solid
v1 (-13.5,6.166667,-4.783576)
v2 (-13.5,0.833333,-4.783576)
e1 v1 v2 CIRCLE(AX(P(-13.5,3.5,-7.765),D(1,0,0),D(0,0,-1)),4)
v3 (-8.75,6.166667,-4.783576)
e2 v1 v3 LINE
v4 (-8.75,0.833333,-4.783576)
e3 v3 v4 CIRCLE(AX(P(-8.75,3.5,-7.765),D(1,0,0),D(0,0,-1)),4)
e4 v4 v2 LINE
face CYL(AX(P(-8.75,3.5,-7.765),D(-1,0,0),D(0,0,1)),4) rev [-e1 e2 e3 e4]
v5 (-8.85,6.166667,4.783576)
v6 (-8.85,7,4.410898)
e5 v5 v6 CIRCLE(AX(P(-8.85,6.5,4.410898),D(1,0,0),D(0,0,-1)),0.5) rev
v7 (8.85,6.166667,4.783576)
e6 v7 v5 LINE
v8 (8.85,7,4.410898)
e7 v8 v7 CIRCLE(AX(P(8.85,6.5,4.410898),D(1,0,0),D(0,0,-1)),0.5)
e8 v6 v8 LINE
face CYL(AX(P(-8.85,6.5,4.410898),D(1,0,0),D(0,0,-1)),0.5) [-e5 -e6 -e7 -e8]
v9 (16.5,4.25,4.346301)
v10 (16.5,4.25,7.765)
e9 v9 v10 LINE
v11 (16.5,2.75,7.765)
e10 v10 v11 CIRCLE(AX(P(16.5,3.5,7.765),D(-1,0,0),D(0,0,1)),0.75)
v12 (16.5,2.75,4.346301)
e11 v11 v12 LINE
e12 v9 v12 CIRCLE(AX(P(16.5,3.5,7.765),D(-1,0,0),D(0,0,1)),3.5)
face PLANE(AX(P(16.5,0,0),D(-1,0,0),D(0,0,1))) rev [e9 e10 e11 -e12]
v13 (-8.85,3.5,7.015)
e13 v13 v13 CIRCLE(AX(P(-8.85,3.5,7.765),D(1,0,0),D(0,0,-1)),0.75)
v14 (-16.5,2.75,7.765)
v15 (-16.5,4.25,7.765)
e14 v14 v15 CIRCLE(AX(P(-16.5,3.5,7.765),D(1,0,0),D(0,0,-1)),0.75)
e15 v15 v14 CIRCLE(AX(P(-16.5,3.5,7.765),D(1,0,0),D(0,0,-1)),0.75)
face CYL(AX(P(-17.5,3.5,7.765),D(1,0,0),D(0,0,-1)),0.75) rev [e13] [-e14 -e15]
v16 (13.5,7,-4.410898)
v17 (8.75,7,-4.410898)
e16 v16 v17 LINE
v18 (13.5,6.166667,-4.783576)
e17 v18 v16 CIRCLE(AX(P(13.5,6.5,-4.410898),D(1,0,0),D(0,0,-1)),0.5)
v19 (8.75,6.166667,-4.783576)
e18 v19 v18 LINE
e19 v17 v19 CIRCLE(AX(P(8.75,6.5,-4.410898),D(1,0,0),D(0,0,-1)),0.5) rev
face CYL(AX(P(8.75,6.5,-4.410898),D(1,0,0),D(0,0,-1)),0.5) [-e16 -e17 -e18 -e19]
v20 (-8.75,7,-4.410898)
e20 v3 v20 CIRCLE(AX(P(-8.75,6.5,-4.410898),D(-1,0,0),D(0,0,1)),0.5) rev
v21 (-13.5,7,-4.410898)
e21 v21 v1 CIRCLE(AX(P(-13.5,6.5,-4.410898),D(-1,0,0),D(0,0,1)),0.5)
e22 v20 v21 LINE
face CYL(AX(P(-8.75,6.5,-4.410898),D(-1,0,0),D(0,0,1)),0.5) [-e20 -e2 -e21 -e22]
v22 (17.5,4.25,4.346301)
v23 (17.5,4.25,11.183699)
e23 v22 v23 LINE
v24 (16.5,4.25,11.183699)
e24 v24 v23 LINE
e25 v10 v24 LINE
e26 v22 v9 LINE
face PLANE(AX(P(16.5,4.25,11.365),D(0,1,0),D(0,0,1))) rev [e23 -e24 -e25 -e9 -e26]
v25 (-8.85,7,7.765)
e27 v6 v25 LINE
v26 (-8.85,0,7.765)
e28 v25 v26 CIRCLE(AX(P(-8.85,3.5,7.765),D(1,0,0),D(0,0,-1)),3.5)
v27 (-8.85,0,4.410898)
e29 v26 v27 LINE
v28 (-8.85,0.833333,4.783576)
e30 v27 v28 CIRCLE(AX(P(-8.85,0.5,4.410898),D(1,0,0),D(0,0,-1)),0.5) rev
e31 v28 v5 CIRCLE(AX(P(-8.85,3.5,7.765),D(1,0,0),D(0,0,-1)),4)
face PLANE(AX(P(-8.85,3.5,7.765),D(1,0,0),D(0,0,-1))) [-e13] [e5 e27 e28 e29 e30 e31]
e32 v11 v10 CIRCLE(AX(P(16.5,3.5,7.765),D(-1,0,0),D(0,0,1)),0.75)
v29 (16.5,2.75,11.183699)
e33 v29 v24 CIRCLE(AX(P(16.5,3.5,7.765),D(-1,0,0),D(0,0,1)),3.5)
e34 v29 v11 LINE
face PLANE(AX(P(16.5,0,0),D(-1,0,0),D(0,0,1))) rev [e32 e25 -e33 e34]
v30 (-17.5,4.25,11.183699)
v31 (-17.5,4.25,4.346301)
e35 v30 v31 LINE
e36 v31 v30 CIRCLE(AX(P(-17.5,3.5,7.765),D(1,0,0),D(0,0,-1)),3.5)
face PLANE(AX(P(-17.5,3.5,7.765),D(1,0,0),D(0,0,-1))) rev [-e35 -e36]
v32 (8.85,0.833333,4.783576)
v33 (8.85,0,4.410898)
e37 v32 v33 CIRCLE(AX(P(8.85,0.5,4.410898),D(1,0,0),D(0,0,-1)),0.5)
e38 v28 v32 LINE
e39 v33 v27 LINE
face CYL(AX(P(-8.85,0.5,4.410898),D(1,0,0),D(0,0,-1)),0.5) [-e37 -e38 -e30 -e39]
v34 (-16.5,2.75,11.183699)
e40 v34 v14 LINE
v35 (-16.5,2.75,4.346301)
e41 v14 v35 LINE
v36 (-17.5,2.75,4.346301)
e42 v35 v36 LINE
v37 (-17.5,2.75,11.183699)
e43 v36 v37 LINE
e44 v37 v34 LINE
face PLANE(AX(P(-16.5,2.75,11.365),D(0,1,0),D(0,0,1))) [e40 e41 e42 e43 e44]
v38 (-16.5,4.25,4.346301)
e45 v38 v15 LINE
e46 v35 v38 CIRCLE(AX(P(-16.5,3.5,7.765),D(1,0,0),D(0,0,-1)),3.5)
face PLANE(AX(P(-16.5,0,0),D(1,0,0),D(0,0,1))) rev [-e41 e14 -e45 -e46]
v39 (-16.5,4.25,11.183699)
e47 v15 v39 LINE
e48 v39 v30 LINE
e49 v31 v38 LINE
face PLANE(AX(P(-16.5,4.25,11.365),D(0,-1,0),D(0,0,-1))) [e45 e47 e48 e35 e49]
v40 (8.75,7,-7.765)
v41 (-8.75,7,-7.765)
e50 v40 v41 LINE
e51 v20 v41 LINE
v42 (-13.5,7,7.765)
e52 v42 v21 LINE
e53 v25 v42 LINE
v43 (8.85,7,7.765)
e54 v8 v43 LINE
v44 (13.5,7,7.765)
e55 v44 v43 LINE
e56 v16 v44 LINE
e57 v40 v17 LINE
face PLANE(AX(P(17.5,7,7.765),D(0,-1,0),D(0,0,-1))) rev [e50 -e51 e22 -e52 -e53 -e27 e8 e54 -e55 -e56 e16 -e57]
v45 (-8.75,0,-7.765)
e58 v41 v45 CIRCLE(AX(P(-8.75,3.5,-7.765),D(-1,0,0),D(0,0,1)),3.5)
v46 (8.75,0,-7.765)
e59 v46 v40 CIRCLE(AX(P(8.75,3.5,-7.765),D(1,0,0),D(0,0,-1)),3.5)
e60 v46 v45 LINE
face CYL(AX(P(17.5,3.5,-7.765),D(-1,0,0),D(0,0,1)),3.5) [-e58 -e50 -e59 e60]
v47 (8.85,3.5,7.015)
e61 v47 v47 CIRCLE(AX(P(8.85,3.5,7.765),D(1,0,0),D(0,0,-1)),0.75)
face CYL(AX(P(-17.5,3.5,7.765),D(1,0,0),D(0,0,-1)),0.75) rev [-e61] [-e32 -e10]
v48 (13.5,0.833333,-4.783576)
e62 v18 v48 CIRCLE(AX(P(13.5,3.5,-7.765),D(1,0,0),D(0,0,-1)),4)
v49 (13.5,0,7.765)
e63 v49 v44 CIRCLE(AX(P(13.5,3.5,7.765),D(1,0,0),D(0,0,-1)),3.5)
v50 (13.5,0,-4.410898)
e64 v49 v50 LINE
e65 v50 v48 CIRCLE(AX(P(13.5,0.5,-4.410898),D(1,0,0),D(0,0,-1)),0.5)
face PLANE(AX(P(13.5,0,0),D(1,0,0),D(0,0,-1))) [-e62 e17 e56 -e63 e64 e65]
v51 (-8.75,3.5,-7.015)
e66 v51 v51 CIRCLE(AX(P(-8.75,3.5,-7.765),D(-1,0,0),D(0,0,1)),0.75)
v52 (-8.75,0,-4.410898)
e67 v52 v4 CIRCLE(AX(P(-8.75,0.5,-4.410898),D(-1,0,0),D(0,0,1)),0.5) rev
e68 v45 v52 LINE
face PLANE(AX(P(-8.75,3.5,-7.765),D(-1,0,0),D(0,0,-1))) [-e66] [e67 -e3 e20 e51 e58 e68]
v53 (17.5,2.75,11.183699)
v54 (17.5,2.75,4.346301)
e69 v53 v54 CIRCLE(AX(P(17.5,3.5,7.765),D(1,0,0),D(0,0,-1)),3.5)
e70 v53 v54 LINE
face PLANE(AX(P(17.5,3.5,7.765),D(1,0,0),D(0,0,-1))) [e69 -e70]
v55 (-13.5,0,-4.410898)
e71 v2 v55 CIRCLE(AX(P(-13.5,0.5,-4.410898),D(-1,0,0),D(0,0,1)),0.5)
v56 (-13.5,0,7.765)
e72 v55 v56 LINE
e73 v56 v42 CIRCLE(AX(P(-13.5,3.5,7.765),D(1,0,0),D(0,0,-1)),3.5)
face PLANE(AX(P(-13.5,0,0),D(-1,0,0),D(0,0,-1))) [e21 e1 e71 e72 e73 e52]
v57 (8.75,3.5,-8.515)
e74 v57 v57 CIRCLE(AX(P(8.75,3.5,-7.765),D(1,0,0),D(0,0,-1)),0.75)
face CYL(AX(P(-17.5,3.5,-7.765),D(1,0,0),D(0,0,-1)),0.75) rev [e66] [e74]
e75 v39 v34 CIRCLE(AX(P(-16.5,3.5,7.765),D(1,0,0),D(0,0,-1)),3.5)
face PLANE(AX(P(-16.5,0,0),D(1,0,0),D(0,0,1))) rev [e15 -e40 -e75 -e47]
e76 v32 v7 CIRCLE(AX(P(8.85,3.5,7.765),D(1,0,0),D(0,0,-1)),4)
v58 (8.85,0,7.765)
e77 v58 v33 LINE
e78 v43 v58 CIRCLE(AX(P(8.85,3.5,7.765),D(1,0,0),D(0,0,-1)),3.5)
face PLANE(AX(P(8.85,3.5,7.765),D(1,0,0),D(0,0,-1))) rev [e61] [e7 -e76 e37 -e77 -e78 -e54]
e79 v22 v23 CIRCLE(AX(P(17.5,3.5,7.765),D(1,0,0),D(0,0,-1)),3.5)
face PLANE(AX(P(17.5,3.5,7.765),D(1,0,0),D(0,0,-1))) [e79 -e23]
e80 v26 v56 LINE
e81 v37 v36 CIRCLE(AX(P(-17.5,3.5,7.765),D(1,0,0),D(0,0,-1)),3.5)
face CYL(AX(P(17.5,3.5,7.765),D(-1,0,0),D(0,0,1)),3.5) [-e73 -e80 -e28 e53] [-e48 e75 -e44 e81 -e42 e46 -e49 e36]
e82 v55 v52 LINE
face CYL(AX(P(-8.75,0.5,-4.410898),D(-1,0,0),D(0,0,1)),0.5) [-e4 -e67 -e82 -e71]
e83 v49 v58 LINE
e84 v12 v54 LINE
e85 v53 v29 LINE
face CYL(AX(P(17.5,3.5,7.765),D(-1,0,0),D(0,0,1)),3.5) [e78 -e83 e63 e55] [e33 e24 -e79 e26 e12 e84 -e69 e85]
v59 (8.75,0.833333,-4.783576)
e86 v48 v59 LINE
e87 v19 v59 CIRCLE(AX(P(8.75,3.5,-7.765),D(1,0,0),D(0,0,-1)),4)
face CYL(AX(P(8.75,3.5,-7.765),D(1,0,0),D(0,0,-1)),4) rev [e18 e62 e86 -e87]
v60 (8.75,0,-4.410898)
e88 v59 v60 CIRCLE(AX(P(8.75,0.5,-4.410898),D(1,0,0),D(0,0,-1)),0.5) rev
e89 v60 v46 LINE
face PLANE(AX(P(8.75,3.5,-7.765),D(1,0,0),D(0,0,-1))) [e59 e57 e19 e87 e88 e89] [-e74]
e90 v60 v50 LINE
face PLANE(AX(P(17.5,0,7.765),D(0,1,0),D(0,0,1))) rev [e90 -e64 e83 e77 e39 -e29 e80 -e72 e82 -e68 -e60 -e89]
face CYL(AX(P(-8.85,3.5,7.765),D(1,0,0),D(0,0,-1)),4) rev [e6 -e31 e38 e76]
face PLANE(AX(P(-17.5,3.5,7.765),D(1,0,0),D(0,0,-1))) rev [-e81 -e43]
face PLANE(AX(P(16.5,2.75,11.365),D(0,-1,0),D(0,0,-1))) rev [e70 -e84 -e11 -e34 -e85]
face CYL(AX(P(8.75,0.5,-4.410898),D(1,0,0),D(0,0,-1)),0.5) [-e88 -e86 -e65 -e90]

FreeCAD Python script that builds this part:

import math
import FreeCAD as App
import Part
import Sketcher


def edges_at(feature, points):
    """Names of the edges that pass closest to the given points."""
    edges = feature.Shape.Edges
    near = lambda p: min(range(len(edges)), key=lambda i: edges[i].distToShape(Part.Vertex(*p))[0])
    return sorted({f"Edge{near(p) + 1}" for p in points})

doc = App.newDocument("Part")
params = doc.addObject("Spreadsheet::Sheet", "Params")
for row, (alias, value) in enumerate([
    ("sketch1_radius", "3.5 mm"),
    ("sketch1_height", "15.53 mm"),
    ("pad1_length", "35 mm"),
    ("sketch2_diameter", "7 mm"),
    ("sketch2_width", "9 mm"),
    ("sketch2_height", "24 mm"),
    ("pocket1_length", "4 mm"),
    ("sketch3_diameter", "8 mm"),
    ("pocket2_length", "17.7 mm"),
    ("sketch4_diameter", "8 mm"),
    ("pocket3_length", "4.75 mm"),
    ("sketch5_width", "1.5 mm"),
    ("sketch5_height", "7.2 mm"),
    ("pocket4_length", "1 mm"),
    ("fillet_radius", "0.5 mm"),
    ("sketch6_diameter", "1.5 mm"),
], start=1):
    params.set(f"A{row}", alias)
    params.set(f"B{row}", "=" + value)
    params.setAlias(f"B{row}", alias)

body = doc.addObject("PartDesign::Body", "Body")

# Sketch on YZ plane
sketch1 = body.newObject("Sketcher::SketchObject", "Sketch")
sketch1.AttachmentSupport = (doc.getObject("YZ_Plane"), [""])
sketch1.MapMode = "FlatFace"
sketch1.addGeometry([
    Part.LineSegment(App.Vector(7, -7.765, 0), App.Vector(7, 7.765, 0)),
    Part.ArcOfCircle(Part.Circle(App.Vector(3.5, 7.765, 0), App.Vector(0, 0, 1), 3.5), math.radians(0), math.radians(180)),
    Part.LineSegment(App.Vector(0, 7.765, 0), App.Vector(0, -7.765, 0)),
    Part.ArcOfCircle(Part.Circle(App.Vector(3.5, -7.765, 0), App.Vector(0, 0, 1), 3.5), math.radians(180), math.radians(360)),
], False)
sketch1.addConstraint([
    Sketcher.Constraint("Tangent", 0, 2, 1, 1),
    Sketcher.Constraint("Tangent", 1, 2, 2, 1),
    Sketcher.Constraint("Tangent", 2, 2, 3, 1),
    Sketcher.Constraint("Tangent", 3, 2, 0, 1),
    Sketcher.Constraint("Vertical", 0),
    Sketcher.Constraint("Vertical", 2),
    Sketcher.Constraint("Symmetric", 1, 2, 2, 2, -1, 1),
    Sketcher.Constraint("Radius", 1, 3.5),
    Sketcher.Constraint("DistanceY", 0, 1, 0, 2, 15.53),
])
sketch1.setExpression("Constraints[7]", "Params.sketch1_radius")
sketch1.setExpression("Constraints[8]", "Params.sketch1_height")
pad1 = body.newObject("PartDesign::Pad", "Pad")
pad1.Profile = sketch1
pad1.setExpression("Length", "Params.pad1_length")
pad1.Midplane = True

# Sketch on YZ plane
sketch2 = body.newObject("Sketcher::SketchObject", "Sketch001")
sketch2.AttachmentSupport = (doc.getObject("YZ_Plane"), [""])
sketch2.MapMode = "FlatFace"
sketch2.AttachmentOffset = App.Placement(App.Vector(0, 0, 17.5), App.Rotation())
sketch2.addGeometry([
    Part.LineSegment(App.Vector(8, 12, 0), App.Vector(-1, 12, 0)),  # 0
    Part.LineSegment(App.Vector(-1, 12, 0), App.Vector(-1, -12, 0)),  # 1
    Part.LineSegment(App.Vector(-1, -12, 0), App.Vector(8, -12, 0)),  # 2
    Part.LineSegment(App.Vector(8, -12, 0), App.Vector(8, 12, 0)),  # 3
    Part.Circle(App.Vector(3.5, 7.765, 0), App.Vector(0, 0, 1), 3.5),  # 4
], False)
sketch2.addConstraint([
    Sketcher.Constraint("Coincident", 0, 2, 1, 1),
    Sketcher.Constraint("Coincident", 1, 2, 2, 1),
    Sketcher.Constraint("Coincident", 2, 2, 3, 1),
    Sketcher.Constraint("Coincident", 3, 2, 0, 1),
    Sketcher.Constraint("Horizontal", 0),
    Sketcher.Constraint("Vertical", 1),
    Sketcher.Constraint("Horizontal", 2),
    Sketcher.Constraint("Vertical", 3),
    Sketcher.Constraint("Diameter", 4, 7.0),
    Sketcher.Constraint("DistanceX", 0, 2, 0, 1, 9.0),
    Sketcher.Constraint("DistanceY", 1, 2, 1, 1, 24.0),
    Sketcher.Constraint("DistanceX", 0, 2, -1, 1, 1.0),
    Sketcher.Constraint("DistanceY", -1, 1, 0, 2, 12.0),
    Sketcher.Constraint("DistanceX", -1, 1, 4, 3, 3.5),
    Sketcher.Constraint("DistanceY", -1, 1, 4, 3, 7.765),
])
sketch2.setExpression("Constraints[8]", "Params.sketch2_diameter")
sketch2.setExpression("Constraints[9]", "Params.sketch2_width")
sketch2.setExpression("Constraints[10]", "Params.sketch2_height")
pocket1 = body.newObject("PartDesign::Pocket", "Pocket")
pocket1.Profile = sketch2
pocket1.setExpression("Length", "Params.pocket1_length")
doc.recompute()

mirrored = body.newObject("PartDesign::Mirrored", "Mirrored")
mirrored.Originals = [pocket1]
mirrored.MirrorPlane = (doc.getObject("YZ_Plane"), [""])
body.Tip = mirrored

# Sketch on YZ plane
sketch3 = body.newObject("Sketcher::SketchObject", "Sketch002")
sketch3.AttachmentSupport = (doc.getObject("YZ_Plane"), [""])
sketch3.MapMode = "FlatFace"
sketch3.addGeometry(Part.Circle(App.Vector(3.5, 7.765, 0), App.Vector(0, 0, 1), 4), False)
sketch3.addConstraint([
    Sketcher.Constraint("Diameter", 0, 8.0),
    Sketcher.Constraint("DistanceX", -1, 1, 0, 3, 3.5),
    Sketcher.Constraint("DistanceY", -1, 1, 0, 3, 7.765),
])
sketch3.setExpression("Constraints[0]", "Params.sketch3_diameter")
pocket2 = body.newObject("PartDesign::Pocket", "Pocket001")
pocket2.Profile = sketch3
pocket2.setExpression("Length", "Params.pocket2_length")
pocket2.Midplane = True

# Sketch on YZ plane
sketch4 = body.newObject("Sketcher::SketchObject", "Sketch003")
sketch4.AttachmentSupport = (doc.getObject("YZ_Plane"), [""])
sketch4.MapMode = "FlatFace"
sketch4.AttachmentOffset = App.Placement(App.Vector(0, 0, 13.5), App.Rotation())
sketch4.addGeometry(Part.Circle(App.Vector(3.5, -7.765, 0), App.Vector(0, 0, 1), 4), False)
sketch4.addConstraint([
    Sketcher.Constraint("Diameter", 0, 8.0),
    Sketcher.Constraint("DistanceX", -1, 1, 0, 3, 3.5),
    Sketcher.Constraint("DistanceY", 0, 3, -1, 1, 7.765),
])
sketch4.setExpression("Constraints[0]", "Params.sketch4_diameter")
pocket3 = body.newObject("PartDesign::Pocket", "Pocket002")
pocket3.Profile = sketch4
pocket3.setExpression("Length", "Params.pocket3_length")

# Sketch on YZ plane
sketch5 = body.newObject("Sketcher::SketchObject", "Sketch004")
sketch5.AttachmentSupport = (doc.getObject("YZ_Plane"), [""])
sketch5.MapMode = "FlatFace"
sketch5.AttachmentOffset = App.Placement(App.Vector(0, 0, 17.5), App.Rotation())
sketch5.addGeometry([
    Part.LineSegment(App.Vector(4.25, 11.365, 0), App.Vector(2.75, 11.365, 0)),
    Part.LineSegment(App.Vector(2.75, 11.365, 0), App.Vector(2.75, 4.165, 0)),
    Part.LineSegment(App.Vector(2.75, 4.165, 0), App.Vector(4.25, 4.165, 0)),
    Part.LineSegment(App.Vector(4.25, 4.165, 0), App.Vector(4.25, 11.365, 0)),
], False)
sketch5.addConstraint([
    Sketcher.Constraint("Coincident", 0, 2, 1, 1),
    Sketcher.Constraint("Coincident", 1, 2, 2, 1),
    Sketcher.Constraint("Coincident", 2, 2, 3, 1),
    Sketcher.Constraint("Coincident", 3, 2, 0, 1),
    Sketcher.Constraint("Horizontal", 0),
    Sketcher.Constraint("Vertical", 1),
    Sketcher.Constraint("Horizontal", 2),
    Sketcher.Constraint("Vertical", 3),
    Sketcher.Constraint("DistanceX", 0, 2, 0, 1, 1.5),
    Sketcher.Constraint("DistanceY", 1, 2, 1, 1, 7.2),
    Sketcher.Constraint("DistanceX", -1, 1, 0, 2, 2.75),
    Sketcher.Constraint("DistanceY", -1, 1, 0, 2, 11.365),
])
sketch5.setExpression("Constraints[8]", "Params.sketch5_width")
sketch5.setExpression("Constraints[9]", "Params.sketch5_height")
pocket4 = body.newObject("PartDesign::Pocket", "Pocket003")
pocket4.Profile = sketch5
pocket4.setExpression("Length", "Params.pocket4_length")
doc.recompute()

mirrored2 = body.newObject("PartDesign::Mirrored", "Mirrored001")
mirrored2.Originals = [pocket3, pocket4]
mirrored2.MirrorPlane = (doc.getObject("YZ_Plane"), [""])
body.Tip = mirrored2
doc.recompute()

fillet = body.newObject("PartDesign::Fillet", "Fillet")
fillet.Base = (mirrored2, edges_at(mirrored2, [
    (-11.125, 0, -5.829),
    (-11.125, 7, -5.829),
    (0, 7, 5.829),
    (0, 0, 5.829),
    (11.125, 0, -5.829),
    (11.125, 7, -5.829),
]))
fillet.setExpression("Radius", "Params.fillet_radius")

# Sketch on YZ plane
sketch6 = body.newObject("Sketcher::SketchObject", "Sketch005")
sketch6.AttachmentSupport = (doc.getObject("YZ_Plane"), [""])
sketch6.MapMode = "FlatFace"
sketch6.AttachmentOffset = App.Placement(App.Vector(0, 0, 17.5), App.Rotation())
sketch6.addGeometry([
    Part.Circle(App.Vector(3.5, 7.765, 0), App.Vector(0, 0, 1), 0.75),
    Part.Circle(App.Vector(3.5, -7.765, 0), App.Vector(0, 0, 1), 0.75),
], False)
sketch6.addConstraint([
    Sketcher.Constraint("Equal", 0, 1),
    Sketcher.Constraint("Symmetric", 0, 3, 1, 3, -1),
    Sketcher.Constraint("Diameter", 0, 1.5),
    Sketcher.Constraint("DistanceX", -1, 1, 0, 3, 3.5),
    Sketcher.Constraint("DistanceY", 1, 3, 0, 3, 15.53),
])
sketch6.setExpression("Constraints[2]", "Params.sketch6_diameter")
pocket5 = body.newObject("PartDesign::Pocket", "Pocket004")
pocket5.Profile = sketch6
pocket5.Type = "ThroughAll"

doc.recompute()
